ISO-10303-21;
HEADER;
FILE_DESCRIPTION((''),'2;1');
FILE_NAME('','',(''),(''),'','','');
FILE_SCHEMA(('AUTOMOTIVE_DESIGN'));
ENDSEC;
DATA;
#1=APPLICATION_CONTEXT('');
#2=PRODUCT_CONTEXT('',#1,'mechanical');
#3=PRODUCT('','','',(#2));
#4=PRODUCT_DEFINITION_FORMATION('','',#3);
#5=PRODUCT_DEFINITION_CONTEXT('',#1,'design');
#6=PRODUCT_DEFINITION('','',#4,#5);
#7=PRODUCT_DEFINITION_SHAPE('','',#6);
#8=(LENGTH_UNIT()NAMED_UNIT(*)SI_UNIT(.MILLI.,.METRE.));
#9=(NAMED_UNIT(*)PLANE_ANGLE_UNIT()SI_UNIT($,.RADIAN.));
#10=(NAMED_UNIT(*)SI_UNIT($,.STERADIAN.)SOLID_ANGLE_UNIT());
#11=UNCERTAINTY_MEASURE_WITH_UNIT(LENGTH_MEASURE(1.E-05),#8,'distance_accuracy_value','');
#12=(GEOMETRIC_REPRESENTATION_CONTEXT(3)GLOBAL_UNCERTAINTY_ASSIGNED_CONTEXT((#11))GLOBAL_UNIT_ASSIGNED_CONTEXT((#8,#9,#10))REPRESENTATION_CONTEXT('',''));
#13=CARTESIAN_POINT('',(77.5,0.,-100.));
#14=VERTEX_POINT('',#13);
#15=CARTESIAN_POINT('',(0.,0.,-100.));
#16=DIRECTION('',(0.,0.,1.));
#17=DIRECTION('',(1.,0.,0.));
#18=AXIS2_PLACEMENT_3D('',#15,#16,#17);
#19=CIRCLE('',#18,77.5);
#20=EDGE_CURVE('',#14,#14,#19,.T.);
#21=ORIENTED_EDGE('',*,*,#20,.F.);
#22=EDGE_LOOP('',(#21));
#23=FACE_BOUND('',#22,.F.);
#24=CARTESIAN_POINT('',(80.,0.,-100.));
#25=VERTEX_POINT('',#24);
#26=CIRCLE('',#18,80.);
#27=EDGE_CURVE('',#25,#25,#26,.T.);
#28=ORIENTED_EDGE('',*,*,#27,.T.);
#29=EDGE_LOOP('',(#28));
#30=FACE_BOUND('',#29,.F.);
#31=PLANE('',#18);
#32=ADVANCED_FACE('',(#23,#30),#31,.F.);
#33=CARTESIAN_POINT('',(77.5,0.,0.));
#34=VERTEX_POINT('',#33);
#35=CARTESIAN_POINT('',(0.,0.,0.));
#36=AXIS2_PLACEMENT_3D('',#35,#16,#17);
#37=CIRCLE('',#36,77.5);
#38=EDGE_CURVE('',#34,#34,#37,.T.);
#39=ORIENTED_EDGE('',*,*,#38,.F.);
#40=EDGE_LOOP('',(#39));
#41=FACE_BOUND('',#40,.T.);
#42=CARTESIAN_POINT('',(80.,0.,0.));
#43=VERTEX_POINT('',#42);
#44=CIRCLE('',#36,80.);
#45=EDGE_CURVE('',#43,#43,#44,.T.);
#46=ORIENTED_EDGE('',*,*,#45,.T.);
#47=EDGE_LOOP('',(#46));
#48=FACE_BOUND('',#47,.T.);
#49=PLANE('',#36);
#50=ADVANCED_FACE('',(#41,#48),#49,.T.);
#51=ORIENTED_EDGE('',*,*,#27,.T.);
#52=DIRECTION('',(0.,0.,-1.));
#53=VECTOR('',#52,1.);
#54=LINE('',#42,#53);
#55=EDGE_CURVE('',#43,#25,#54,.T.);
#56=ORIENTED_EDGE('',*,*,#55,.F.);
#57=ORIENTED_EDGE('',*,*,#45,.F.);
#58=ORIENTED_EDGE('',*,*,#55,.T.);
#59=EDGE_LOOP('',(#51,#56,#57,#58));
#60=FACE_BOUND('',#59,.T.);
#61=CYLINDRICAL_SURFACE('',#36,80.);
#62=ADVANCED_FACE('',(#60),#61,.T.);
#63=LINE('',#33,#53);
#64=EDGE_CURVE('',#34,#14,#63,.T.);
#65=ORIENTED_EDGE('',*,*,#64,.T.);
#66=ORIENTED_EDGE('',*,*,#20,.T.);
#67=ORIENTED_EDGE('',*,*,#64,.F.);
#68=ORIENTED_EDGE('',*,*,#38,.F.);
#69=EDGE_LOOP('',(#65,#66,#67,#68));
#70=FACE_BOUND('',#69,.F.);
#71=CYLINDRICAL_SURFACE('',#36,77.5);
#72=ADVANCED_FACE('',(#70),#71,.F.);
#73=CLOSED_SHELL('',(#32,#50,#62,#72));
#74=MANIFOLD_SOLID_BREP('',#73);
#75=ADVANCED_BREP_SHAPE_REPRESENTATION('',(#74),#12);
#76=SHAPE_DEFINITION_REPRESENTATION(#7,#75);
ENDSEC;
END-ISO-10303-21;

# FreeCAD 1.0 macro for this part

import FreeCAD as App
import Part
import Sketcher

V = App.Vector
Q = App.Units.Quantity

doc = App.newDocument("Part")
body = doc.addObject("PartDesign::Body", "Body")

# Sketch on XY plane
sketch1 = body.newObject("Sketcher::SketchObject", "Sketch")
sketch1.AttachmentSupport = (doc.getObject("XY_Plane"), [""])
sketch1.MapMode = "FlatFace"
sketch1.addGeometry([
    Part.Circle(V(0, 0, 0), V(0, 0, 1), 80),
    Part.Circle(V(0, 0, 0), V(0, 0, 1), 78),
], False)
sketch1.addConstraint([
    Sketcher.Constraint("Coincident", 0, 3, -1, 1),
    Sketcher.Constraint("Coincident", 1, 3, -1, 1),
    Sketcher.Constraint("Diameter", 0, Q("160 mm")),
    Sketcher.Constraint("Diameter", 1, Q("155 mm")),
])
pad1 = body.newObject("PartDesign::Pad", "Pad")
pad1.Profile = sketch1
pad1.Length = 100
pad1.Reversed = True

doc.recompute()
